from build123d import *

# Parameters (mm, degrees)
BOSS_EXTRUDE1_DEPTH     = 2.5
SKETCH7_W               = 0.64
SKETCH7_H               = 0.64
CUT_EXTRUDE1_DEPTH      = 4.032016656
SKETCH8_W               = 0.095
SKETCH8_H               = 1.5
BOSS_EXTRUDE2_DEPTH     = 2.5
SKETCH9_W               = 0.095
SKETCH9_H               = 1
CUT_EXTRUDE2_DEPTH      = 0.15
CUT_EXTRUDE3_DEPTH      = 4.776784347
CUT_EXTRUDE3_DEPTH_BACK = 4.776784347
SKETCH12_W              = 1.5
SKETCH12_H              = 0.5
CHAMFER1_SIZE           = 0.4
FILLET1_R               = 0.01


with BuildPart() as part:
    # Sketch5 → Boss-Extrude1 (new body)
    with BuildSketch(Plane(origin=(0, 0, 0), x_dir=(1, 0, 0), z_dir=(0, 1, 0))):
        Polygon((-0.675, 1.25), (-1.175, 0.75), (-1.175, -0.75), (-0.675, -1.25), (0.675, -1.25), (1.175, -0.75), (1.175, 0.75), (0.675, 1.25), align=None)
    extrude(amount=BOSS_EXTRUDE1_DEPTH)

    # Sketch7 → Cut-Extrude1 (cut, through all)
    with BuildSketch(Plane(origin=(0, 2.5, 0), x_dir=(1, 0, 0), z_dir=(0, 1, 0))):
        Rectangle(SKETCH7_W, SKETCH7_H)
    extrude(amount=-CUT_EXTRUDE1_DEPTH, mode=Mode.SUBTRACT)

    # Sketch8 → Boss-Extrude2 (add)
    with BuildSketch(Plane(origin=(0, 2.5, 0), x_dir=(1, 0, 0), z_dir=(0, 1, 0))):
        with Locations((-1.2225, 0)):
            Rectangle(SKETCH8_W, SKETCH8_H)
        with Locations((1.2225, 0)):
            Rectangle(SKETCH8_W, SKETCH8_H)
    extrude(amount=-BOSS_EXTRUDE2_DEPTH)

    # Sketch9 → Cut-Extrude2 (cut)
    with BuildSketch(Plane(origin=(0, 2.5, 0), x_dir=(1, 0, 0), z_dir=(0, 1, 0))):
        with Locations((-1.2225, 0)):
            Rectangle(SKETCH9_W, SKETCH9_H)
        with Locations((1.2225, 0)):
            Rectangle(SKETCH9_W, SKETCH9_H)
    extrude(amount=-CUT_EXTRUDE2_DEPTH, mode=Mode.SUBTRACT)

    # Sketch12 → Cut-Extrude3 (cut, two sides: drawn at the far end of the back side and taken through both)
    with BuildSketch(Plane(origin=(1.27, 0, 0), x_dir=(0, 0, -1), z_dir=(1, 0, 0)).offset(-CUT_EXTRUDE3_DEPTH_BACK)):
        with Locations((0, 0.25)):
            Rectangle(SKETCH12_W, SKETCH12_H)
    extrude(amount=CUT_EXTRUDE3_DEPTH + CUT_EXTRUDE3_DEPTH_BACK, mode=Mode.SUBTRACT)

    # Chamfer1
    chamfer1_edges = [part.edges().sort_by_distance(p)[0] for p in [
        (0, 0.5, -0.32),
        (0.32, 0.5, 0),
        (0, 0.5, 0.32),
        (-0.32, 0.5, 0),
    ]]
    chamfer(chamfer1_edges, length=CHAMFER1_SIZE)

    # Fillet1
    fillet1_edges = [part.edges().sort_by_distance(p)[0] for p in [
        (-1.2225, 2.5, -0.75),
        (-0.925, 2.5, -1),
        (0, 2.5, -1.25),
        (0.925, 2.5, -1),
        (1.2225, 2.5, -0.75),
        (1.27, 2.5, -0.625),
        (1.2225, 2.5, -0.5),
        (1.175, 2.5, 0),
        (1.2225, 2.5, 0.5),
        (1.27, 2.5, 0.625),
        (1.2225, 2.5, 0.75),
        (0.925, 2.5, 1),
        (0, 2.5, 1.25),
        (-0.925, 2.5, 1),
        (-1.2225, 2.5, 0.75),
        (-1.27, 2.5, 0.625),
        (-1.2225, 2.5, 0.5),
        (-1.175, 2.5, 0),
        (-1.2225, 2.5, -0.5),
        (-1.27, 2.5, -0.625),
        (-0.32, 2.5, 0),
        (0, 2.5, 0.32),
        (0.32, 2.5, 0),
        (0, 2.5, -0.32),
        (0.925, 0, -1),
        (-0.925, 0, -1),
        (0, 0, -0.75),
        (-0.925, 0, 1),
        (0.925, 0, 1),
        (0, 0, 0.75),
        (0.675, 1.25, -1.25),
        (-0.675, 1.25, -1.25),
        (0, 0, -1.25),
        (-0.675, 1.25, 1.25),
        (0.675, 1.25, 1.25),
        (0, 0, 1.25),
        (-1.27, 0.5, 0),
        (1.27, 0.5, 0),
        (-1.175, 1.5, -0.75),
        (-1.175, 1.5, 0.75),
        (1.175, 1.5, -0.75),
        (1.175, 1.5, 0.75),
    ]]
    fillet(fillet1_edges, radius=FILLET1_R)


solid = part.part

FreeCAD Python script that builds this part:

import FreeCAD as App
import Part
import Sketcher
from FreeCAD import Vector
Q = App.Units.Quantity


def edges_at(feature, points):
    """Names of the edges that pass closest to the given points."""
    edges = feature.Shape.Edges
    near = lambda p: min(range(len(edges)), key=lambda i: edges[i].distToShape(Part.Vertex(*p))[0])
    return sorted({f"Edge{near(p) + 1}" for p in points})


def add_polygon(sketch, points):
    """Adds a closed chain of lines whose ends are joined by coincident constraints."""
    first, n = sketch.GeometryCount, len(points)
    for a, b in zip(points, points[1:] + points[:1]):
        sketch.addGeometry(Part.LineSegment(App.Vector(*a, 0), App.Vector(*b, 0)), False)
    for i in range(n):
        sketch.addConstraint(Sketcher.Constraint("Coincident", first + i, 2, first + (i + 1) % n, 1))

doc = App.newDocument("Part")
params = doc.addObject("Spreadsheet::Sheet", "Params")
for row, (alias, value) in enumerate([
    ("sketch1_height", "1.5 mm"),
    ("sketch1_width", "1.35 mm"),
    ("pad1_length", "2.5 mm"),
    ("sketch2_width", "0.64 mm"),
    ("sketch3_height", "1.5 mm"),
    ("pad2_length", "2.5 mm"),
    ("sketch4_height", "1 mm"),
    ("pocket2_length", "0.15 mm"),
    ("sketch5_width", "0.5 mm"),
    ("sketch5_height", "1.5 mm"),
    ("chamfer_size", "0.4 mm"),
    ("fillet_radius", "0.01 mm"),
], start=1):
    params.set(f"A{row}", alias)
    params.set(f"B{row}", "=" + value)
    params.setAlias(f"B{row}", alias)

body = doc.addObject("PartDesign::Body", "Body")

sketch1 = body.newObject("Sketcher::SketchObject", "Sketch")
sketch1.AttachmentSupport = (doc.getObject("XZ_Plane"), [""])
sketch1.MapMode = "FlatFace"
add_polygon(sketch1, [(-0.7, -1.2), (-1.2, -0.8), (-1.2, 0.8), (-0.7, 1.2), (0.7, 1.2), (1.2, 0.8), (1.2, -0.8), (0.7, -1.2)])
sketch1.addConstraint(Sketcher.Constraint("Vertical", 1))
sketch1.addConstraint(Sketcher.Constraint("Horizontal", 3))
sketch1.addConstraint(Sketcher.Constraint("Vertical", 5))
sketch1.addConstraint(Sketcher.Constraint("Horizontal", 7))
sketch1.addConstraint(Sketcher.Constraint("Symmetric", 0, 2, 4, 2, -1, 1))
sketch1.addConstraint(Sketcher.Constraint("Symmetric", 2, 2, 6, 2, -1, 1))
sketch1.addConstraint(Sketcher.Constraint("Perpendicular", 0, 2))
sketch1.addConstraint(Sketcher.Constraint("Perpendicular", 2, 4))
sketch1.addConstraint(Sketcher.Constraint("Perpendicular", 4, 6))
sketch1.addConstraint(Sketcher.Constraint("Horizontal", 1, 2, 4, 2))
sketch1.addConstraint(Sketcher.Constraint("Vertical", 3, 2, 6, 2))
sketch1.addConstraint(Sketcher.Constraint("DistanceY", 1, 1, 1, 2, Q("1.5 mm")))
sketch1.addConstraint(Sketcher.Constraint("DistanceY", 0, 2, 2, 2, Q("2 mm")))
sketch1.addConstraint(Sketcher.Constraint("DistanceX", 3, 1, 3, 2, Q("1.35 mm")))
sketch1.setExpression("Constraints[19]", "Params.sketch1_height")
sketch1.setExpression("Constraints[21]", "Params.sketch1_width")
pad1 = body.newObject("PartDesign::Pad", "Pad")
pad1.Profile = sketch1
pad1.setExpression("Length", "Params.pad1_length")
pad1.Reversed = True

sketch2 = body.newObject("Sketcher::SketchObject", "Sketch001")
sketch2.AttachmentSupport = (doc.getObject("XZ_Plane"), [""])
sketch2.MapMode = "FlatFace"
sketch2.AttachmentOffset = App.Placement(Vector(0, 0, -2.5), App.Rotation())
add_polygon(sketch2, [(-0.3, -0.3), (-0.3, 0.3), (0.3, 0.3), (0.3, -0.3)])
sketch2.addConstraint(Sketcher.Constraint("Vertical", 0))
sketch2.addConstraint(Sketcher.Constraint("Horizontal", 1))
sketch2.addConstraint(Sketcher.Constraint("Vertical", 2))
sketch2.addConstraint(Sketcher.Constraint("Horizontal", 3))
sketch2.addConstraint(Sketcher.Constraint("Symmetric", 0, 2, 2, 2, -1, 1))
sketch2.addConstraint(Sketcher.Constraint("Equal", 3, 0))
sketch2.addConstraint(Sketcher.Constraint("DistanceX", 1, 1, 1, 2, Q("0.64 mm")))
sketch2.setExpression("Constraints[10]", "Params.sketch2_width")
pocket1 = body.newObject("PartDesign::Pocket", "Pocket")
pocket1.Profile = sketch2
pocket1.Type = "ThroughAll"
pocket1.Reversed = True

sketch3 = body.newObject("Sketcher::SketchObject", "Sketch002")
sketch3.AttachmentSupport = (doc.getObject("XZ_Plane"), [""])
sketch3.MapMode = "FlatFace"
sketch3.AttachmentOffset = App.Placement(Vector(0, 0, -2.5), App.Rotation())
add_polygon(sketch3, [(-1.27, -0.75), (-1.27, 0.75), (-1.18, 0.75), (-1.18, -0.75)])
add_polygon(sketch3, [(1.18, -0.75), (1.18, 0.75), (1.27, 0.75), (1.27, -0.75)])
sketch3.addConstraint(Sketcher.Constraint("Vertical", 0))
sketch3.addConstraint(Sketcher.Constraint("Horizontal", 1))
sketch3.addConstraint(Sketcher.Constraint("Vertical", 2))
sketch3.addConstraint(Sketcher.Constraint("Horizontal", 3))
sketch3.addConstraint(Sketcher.Constraint("Vertical", 4))
sketch3.addConstraint(Sketcher.Constraint("Horizontal", 5))
sketch3.addConstraint(Sketcher.Constraint("Vertical", 6))
sketch3.addConstraint(Sketcher.Constraint("Horizontal", 7))
sketch3.addConstraint(Sketcher.Constraint("Symmetric", 2, 2, 4, 2, -1, 1))
sketch3.addConstraint(Sketcher.Constraint("Symmetric", 0, 2, 6, 2, -1, 1))
sketch3.addConstraint(Sketcher.Constraint("Horizontal", 1, 2, 4, 2))
sketch3.addConstraint(Sketcher.Constraint("DistanceY", 0, 1, 0, 2, Q("1.5 mm")))
sketch3.addConstraint(Sketcher.Constraint("DistanceX", 1, 1, 1, 2, Q("0.095 mm")))
sketch3.addConstraint(Sketcher.Constraint("DistanceX", 0, 2, -1, 1, Q("1.27 mm")))
sketch3.setExpression("Constraints[19]", "Params.sketch3_height")
pad2 = body.newObject("PartDesign::Pad", "Pad001")
pad2.Profile = sketch3
pad2.setExpression("Length", "Params.pad2_length")

sketch4 = body.newObject("Sketcher::SketchObject", "Sketch003")
sketch4.AttachmentSupport = (doc.getObject("XZ_Plane"), [""])
sketch4.MapMode = "FlatFace"
sketch4.AttachmentOffset = App.Placement(Vector(0, 0, -2.5), App.Rotation())
add_polygon(sketch4, [(-1.27, -0.5), (-1.27, 0.5), (-1.18, 0.5), (-1.18, -0.5)])
add_polygon(sketch4, [(1.18, -0.5), (1.18, 0.5), (1.27, 0.5), (1.27, -0.5)])
sketch4.addConstraint(Sketcher.Constraint("Vertical", 0))
sketch4.addConstraint(Sketcher.Constraint("Horizontal", 1))
sketch4.addConstraint(Sketcher.Constraint("Vertical", 2))
sketch4.addConstraint(Sketcher.Constraint("Horizontal", 3))
sketch4.addConstraint(Sketcher.Constraint("Vertical", 4))
sketch4.addConstraint(Sketcher.Constraint("Horizontal", 5))
sketch4.addConstraint(Sketcher.Constraint("Vertical", 6))
sketch4.addConstraint(Sketcher.Constraint("Horizontal", 7))
sketch4.addConstraint(Sketcher.Constraint("Symmetric", 2, 2, 4, 2, -1, 1))
sketch4.addConstraint(Sketcher.Constraint("Symmetric", 0, 2, 6, 2, -1, 1))
sketch4.addConstraint(Sketcher.Constraint("Horizontal", 1, 2, 4, 2))
sketch4.addConstraint(Sketcher.Constraint("DistanceY", 0, 1, 0, 2, Q("1 mm")))
sketch4.addConstraint(Sketcher.Constraint("DistanceX", 1, 1, 1, 2, Q("0.095 mm")))
sketch4.addConstraint(Sketcher.Constraint("DistanceX", 0, 2, -1, 1, Q("1.27 mm")))
sketch4.setExpression("Constraints[19]", "Params.sketch4_height")
pocket2 = body.newObject("PartDesign::Pocket", "Pocket001")
pocket2.Profile = sketch4
pocket2.setExpression("Length", "Params.pocket2_length")
pocket2.Reversed = True

sketch5 = body.newObject("Sketcher::SketchObject", "Sketch004")
sketch5.AttachmentSupport = (doc.getObject("YZ_Plane"), [""])
sketch5.MapMode = "FlatFace"
sketch5.AttachmentOffset = App.Placement(Vector(0, 0, 1.27), App.Rotation())
add_polygon(sketch5, [(0.5, 0.8), (0, 0.8), (0, -0.8), (0.5, -0.8)])
sketch5.addConstraint(Sketcher.Constraint("Horizontal", 0))
sketch5.addConstraint(Sketcher.Constraint("Vertical", 1))
sketch5.addConstraint(Sketcher.Constraint("Horizontal", 2))
sketch5.addConstraint(Sketcher.Constraint("Vertical", 3))
sketch5.addConstraint(Sketcher.Constraint("Symmetric", 0, 2, 1, 2, -1, 1))
sketch5.addConstraint(Sketcher.Constraint("DistanceX", 0, 2, 0, 1, Q("0.5 mm")))
sketch5.addConstraint(Sketcher.Constraint("DistanceY", 1, 2, 1, 1, Q("1.5 mm")))
sketch5.setExpression("Constraints[9]", "Params.sketch5_width")
sketch5.setExpression("Constraints[10]", "Params.sketch5_height")
pocket3 = body.newObject("PartDesign::Pocket", "Pocket002")
pocket3.Profile = sketch5
pocket3.Type = "ThroughAll"
pocket3.Midplane = True
doc.recompute()

chamfer = body.newObject("PartDesign::Chamfer", "Chamfer")
chamfer.Base = (pocket3, edges_at(pocket3, [
    (0, 0.5, -0.32),
    (0.32, 0.5, 0),
    (0, 0.5, 0.32),
    (-0.32, 0.5, 0),
]))
chamfer.setExpression("Size", "Params.chamfer_size")
doc.recompute()

fillet = body.newObject("PartDesign::Fillet", "Fillet")
fillet.Base = (chamfer, edges_at(chamfer, [
    (-1.222, 2.5, -0.75),
    (-0.925, 2.5, -1),
    (0, 2.5, -1.25),
    (0.925, 2.5, -1),
    (1.222, 2.5, -0.75),
    (1.27, 2.5, -0.625),
    (1.222, 2.5, -0.5),
    (1.175, 2.5, 0),
    (1.222, 2.5, 0.5),
    (1.27, 2.5, 0.625),
    (1.222, 2.5, 0.75),
    (0.925, 2.5, 1),
    (0, 2.5, 1.25),
    (-0.925, 2.5, 1),
    (-1.222, 2.5, 0.75),
    (-1.27, 2.5, 0.625),
    (-1.222, 2.5, 0.5),
    (-1.175, 2.5, 0),
    (-1.222, 2.5, -0.5),
    (-1.27, 2.5, -0.625),
    (-0.32, 2.5, 0),
    (0, 2.5, 0.32),
    (0.32, 2.5, 0),
    (0, 2.5, -0.32),
    (0.925, 0, -1),
    (-0.925, 0, -1),
    (0, 0, -0.75),
    (-0.925, 0, 1),
    (0.925, 0, 1),
    (0, 0, 0.75),
    (0.675, 1.25, -1.25),
    (-0.675, 1.25, -1.25),
    (0, 0, -1.25),
    (-0.675, 1.25, 1.25),
    (0.675, 1.25, 1.25),
    (0, 0, 1.25),
    (-1.27, 0.5, 0),
    (1.27, 0.5, 0),
    (-1.175, 1.5, -0.75),
    (-1.175, 1.5, 0.75),
    (1.175, 1.5, -0.75),
    (1.175, 1.5, 0.75),
]))
fillet.setExpression("Radius", "Params.fillet_radius")

doc.recompute()
